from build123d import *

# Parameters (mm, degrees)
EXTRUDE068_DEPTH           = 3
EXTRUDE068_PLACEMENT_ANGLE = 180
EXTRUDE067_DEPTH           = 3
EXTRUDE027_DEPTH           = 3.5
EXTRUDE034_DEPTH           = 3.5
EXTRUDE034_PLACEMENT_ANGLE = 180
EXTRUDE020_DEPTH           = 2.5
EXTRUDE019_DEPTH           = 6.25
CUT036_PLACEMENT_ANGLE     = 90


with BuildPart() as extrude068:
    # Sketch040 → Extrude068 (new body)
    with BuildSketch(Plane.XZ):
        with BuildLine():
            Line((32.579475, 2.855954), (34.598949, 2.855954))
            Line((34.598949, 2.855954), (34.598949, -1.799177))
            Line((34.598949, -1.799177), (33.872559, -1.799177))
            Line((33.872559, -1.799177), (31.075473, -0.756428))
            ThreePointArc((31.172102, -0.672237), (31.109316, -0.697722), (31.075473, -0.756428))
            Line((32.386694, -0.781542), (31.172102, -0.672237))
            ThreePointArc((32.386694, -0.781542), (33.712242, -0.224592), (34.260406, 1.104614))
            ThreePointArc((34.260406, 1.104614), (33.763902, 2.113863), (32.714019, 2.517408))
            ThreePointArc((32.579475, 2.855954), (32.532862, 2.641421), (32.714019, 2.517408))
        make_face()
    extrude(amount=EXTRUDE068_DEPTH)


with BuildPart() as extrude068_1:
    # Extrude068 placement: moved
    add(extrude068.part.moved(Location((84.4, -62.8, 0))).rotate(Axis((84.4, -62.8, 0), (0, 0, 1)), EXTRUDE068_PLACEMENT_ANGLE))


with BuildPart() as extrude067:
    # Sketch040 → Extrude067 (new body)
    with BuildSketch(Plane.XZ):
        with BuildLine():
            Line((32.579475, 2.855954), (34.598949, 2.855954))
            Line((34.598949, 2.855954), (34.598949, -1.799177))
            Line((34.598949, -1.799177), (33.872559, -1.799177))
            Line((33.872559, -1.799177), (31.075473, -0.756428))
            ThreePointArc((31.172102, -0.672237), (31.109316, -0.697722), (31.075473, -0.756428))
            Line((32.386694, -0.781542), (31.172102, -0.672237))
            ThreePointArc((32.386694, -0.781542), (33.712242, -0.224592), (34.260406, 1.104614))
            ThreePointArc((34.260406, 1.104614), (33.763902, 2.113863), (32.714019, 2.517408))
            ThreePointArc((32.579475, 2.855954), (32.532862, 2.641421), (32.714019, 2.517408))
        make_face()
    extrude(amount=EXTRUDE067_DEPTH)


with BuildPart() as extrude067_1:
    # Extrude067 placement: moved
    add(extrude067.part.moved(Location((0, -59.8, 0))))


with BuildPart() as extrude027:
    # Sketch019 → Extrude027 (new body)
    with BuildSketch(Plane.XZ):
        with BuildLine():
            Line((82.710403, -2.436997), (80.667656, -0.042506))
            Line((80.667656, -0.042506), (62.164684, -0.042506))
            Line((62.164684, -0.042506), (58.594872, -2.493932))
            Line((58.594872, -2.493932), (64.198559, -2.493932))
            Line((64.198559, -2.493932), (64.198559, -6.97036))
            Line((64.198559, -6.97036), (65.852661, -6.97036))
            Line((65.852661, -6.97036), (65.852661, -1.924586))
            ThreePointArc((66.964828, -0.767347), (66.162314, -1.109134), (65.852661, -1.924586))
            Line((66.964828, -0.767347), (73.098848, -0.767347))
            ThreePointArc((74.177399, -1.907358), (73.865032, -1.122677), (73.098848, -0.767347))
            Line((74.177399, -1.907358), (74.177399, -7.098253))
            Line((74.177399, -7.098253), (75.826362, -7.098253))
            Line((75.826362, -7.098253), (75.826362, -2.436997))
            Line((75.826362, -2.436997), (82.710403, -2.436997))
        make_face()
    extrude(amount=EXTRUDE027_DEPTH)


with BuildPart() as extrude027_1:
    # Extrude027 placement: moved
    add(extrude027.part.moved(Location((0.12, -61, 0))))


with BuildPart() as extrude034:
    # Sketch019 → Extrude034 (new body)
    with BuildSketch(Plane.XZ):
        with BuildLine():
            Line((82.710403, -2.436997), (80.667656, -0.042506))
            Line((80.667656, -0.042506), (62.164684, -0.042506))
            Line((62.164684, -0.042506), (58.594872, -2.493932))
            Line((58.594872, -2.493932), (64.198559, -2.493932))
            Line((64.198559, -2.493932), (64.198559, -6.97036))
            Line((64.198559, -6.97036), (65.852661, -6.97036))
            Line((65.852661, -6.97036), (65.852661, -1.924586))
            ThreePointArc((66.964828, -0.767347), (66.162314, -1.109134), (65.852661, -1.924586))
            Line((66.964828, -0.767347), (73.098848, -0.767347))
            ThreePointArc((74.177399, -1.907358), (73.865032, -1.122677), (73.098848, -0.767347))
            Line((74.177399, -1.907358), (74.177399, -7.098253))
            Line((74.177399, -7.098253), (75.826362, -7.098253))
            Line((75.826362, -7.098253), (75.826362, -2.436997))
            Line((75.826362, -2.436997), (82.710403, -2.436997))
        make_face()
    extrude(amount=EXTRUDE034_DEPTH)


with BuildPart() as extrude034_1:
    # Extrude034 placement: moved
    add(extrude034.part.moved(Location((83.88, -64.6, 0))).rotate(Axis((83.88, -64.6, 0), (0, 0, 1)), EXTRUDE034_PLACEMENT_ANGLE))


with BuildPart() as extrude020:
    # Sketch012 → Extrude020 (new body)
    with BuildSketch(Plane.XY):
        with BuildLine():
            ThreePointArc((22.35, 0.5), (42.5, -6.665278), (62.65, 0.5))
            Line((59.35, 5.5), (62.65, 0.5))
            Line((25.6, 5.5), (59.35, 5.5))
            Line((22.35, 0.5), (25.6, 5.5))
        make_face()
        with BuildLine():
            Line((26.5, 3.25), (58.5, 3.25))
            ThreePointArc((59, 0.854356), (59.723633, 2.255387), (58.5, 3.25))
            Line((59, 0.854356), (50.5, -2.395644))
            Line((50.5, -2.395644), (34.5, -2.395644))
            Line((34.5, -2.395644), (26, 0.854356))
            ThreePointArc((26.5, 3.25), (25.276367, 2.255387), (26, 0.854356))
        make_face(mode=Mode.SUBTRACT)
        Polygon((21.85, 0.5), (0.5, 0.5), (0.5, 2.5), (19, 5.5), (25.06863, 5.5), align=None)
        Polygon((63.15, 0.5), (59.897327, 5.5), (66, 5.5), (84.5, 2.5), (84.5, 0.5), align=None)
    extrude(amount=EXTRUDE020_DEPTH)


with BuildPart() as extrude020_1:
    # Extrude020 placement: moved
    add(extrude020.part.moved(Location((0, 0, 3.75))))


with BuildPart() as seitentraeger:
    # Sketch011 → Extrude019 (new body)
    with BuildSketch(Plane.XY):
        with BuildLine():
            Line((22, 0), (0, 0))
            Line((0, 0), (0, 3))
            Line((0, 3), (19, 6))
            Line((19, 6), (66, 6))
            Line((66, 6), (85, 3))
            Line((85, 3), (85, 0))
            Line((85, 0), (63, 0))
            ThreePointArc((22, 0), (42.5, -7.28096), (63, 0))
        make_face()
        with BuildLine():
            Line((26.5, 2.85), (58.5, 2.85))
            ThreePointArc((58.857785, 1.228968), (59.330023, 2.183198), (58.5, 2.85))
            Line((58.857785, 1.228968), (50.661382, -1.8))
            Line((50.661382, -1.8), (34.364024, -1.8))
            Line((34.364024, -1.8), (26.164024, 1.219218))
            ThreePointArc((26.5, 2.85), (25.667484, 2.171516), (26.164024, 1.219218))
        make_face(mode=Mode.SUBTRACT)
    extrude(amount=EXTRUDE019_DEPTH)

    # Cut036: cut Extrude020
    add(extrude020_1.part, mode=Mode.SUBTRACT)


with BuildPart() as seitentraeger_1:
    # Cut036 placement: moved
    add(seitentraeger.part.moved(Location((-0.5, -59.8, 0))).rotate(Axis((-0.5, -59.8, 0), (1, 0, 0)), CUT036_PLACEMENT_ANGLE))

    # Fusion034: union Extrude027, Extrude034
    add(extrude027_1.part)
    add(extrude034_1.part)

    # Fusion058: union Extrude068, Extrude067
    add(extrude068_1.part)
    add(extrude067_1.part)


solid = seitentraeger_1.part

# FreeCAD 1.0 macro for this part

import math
import FreeCAD as App
import Part
import Sketcher

V = App.Vector

doc = App.newDocument("Part")
body = doc.addObject("PartDesign::Body", "Body")

sketch1 = body.newObject("Sketcher::SketchObject", "Sketch")
sketch1.AttachmentSupport = (doc.getObject("XZ_Plane"), [""])
sketch1.MapMode = "FlatFace"
sketch1.addGeometry(Part.LineSegment(V(34.6, 2.86, 0), V(32.58, 2.86, 0)), False)
sketch1.addGeometry(Part.ArcOfCircle(Part.Circle(V(32.72, 2.71, 0), V(0, 0, 1), 0.2), math.radians(134), math.radians(270)), False)
sketch1.addGeometry(Part.ArcOfCircle(Part.Circle(V(32.72, 0.98, 0), V(0, 0, 1), 1.54), math.radians(5), math.radians(90)), False)
sketch1.addGeometry(Part.ArcOfCircle(Part.Circle(V(32.37, 1.11, 0), V(0, 0, 1), 1.89), math.radians(-90), math.radians(0)), False)
sketch1.addGeometry(Part.LineSegment(V(32.39, -0.78, 0), V(31.17, -0.67, 0)), False)
sketch1.addGeometry(Part.ArcOfCircle(Part.Circle(V(31.18, -0.78, 0), V(0, 0, 1), 0.1), math.radians(93), math.radians(169)), False)
sketch1.addGeometry(Part.LineSegment(V(31.08, -0.76, 0), V(33.87, -1.8, 0)), False)
sketch1.addGeometry(Part.LineSegment(V(33.87, -1.8, 0), V(34.6, -1.8, 0)), False)
sketch1.addGeometry(Part.LineSegment(V(34.6, -1.8, 0), V(34.6, 2.86, 0)), False)
sketch1.addConstraint(Sketcher.Constraint("Coincident", 0, 2, 1, 1))
sketch1.addConstraint(Sketcher.Constraint("Coincident", 1, 2, 2, 2))
sketch1.addConstraint(Sketcher.Constraint("Coincident", 2, 1, 3, 2))
sketch1.addConstraint(Sketcher.Constraint("Coincident", 3, 1, 4, 1))
sketch1.addConstraint(Sketcher.Constraint("Coincident", 4, 2, 5, 1))
sketch1.addConstraint(Sketcher.Constraint("Coincident", 5, 2, 6, 1))
sketch1.addConstraint(Sketcher.Constraint("Coincident", 6, 2, 7, 1))
sketch1.addConstraint(Sketcher.Constraint("Coincident", 7, 2, 8, 1))
sketch1.addConstraint(Sketcher.Constraint("Coincident", 8, 2, 0, 1))
sketch1.addConstraint(Sketcher.Constraint("Horizontal", 0))
sketch1.addConstraint(Sketcher.Constraint("Horizontal", 7))
sketch1.addConstraint(Sketcher.Constraint("Vertical", 8))
sketch1.addConstraint(Sketcher.Constraint("Radius", 1, 0.196644))
sketch1.addConstraint(Sketcher.Constraint("Radius", 2, 1.541998))
sketch1.addConstraint(Sketcher.Constraint("Radius", 3, 1.886598))
sketch1.addConstraint(Sketcher.Constraint("Radius", 5, 0.104212))
sketch1.addConstraint(Sketcher.Constraint("Distance", 4, 1.2195))
sketch1.addConstraint(Sketcher.Constraint("DistanceX", 7, 1, 7, 2, 0.72639))
sketch1.addConstraint(Sketcher.Constraint("DistanceY", 8, 1, 8, 2, 4.655131))
sketch1.addConstraint(Sketcher.Constraint("DistanceX", -1, 1, 4, 2, 31.172102))
sketch1.addConstraint(Sketcher.Constraint("DistanceX", 5, 3, 0, 2, 1.401701))
sketch1.addConstraint(Sketcher.Constraint("DistanceX", 5, 2, 5, 3, 0.102301))
sketch1.addConstraint(Sketcher.Constraint("DistanceX", 0, 2, 0, 1, 2.019474))
sketch1.addConstraint(Sketcher.Constraint("DistanceX", -1, 1, 2, 3, 32.723828))
sketch1.addConstraint(Sketcher.Constraint("DistanceY", -1, 1, 2, 3, 0.975442))
sketch1.addConstraint(Sketcher.Constraint("DistanceX", -1, 1, 3, 3, 32.373808))
sketch1.addConstraint(Sketcher.Constraint("DistanceY", -1, 1, 3, 3, 1.105012))
sketch1.addConstraint(Sketcher.Constraint("DistanceX", -1, 1, 1, 2, 32.714019))
sketch1.addConstraint(Sketcher.Constraint("DistanceX", -1, 1, 6, 2, 33.872559))
sketch1.addConstraint(Sketcher.Constraint("DistanceX", 5, 3, 1, 3, 1.53783))
sketch1.addConstraint(Sketcher.Constraint("DistanceY", 5, 3, 1, 3, 3.490341))
pad1 = body.newObject("PartDesign::Pad", "Pad")
pad1.Profile = sketch1
pad1.Length = 3
body2 = doc.addObject("PartDesign::Body", "Body001")
doc.recompute()

body.Placement = App.Placement(V(84.4, -62.8, 0), App.Rotation(V(0, 0, 1), 180))
boolean = body2.newObject("PartDesign::Boolean", "Boolean")
boolean.Type = "Fuse"
boolean.addObjects([body])
body3 = doc.addObject("PartDesign::Body", "Body002")

sketch2 = body3.newObject("Sketcher::SketchObject", "Sketch001")
sketch2.AttachmentSupport = (doc.getObject("XZ_Plane002"), [""])
sketch2.MapMode = "FlatFace"
sketch2.addGeometry(Part.LineSegment(V(34.6, 2.86, 0), V(32.58, 2.86, 0)), False)
sketch2.addGeometry(Part.ArcOfCircle(Part.Circle(V(32.72, 2.71, 0), V(0, 0, 1), 0.2), math.radians(134), math.radians(270)), False)
sketch2.addGeometry(Part.ArcOfCircle(Part.Circle(V(32.72, 0.98, 0), V(0, 0, 1), 1.54), math.radians(5), math.radians(90)), False)
sketch2.addGeometry(Part.ArcOfCircle(Part.Circle(V(32.37, 1.11, 0), V(0, 0, 1), 1.89), math.radians(-90), math.radians(0)), False)
sketch2.addGeometry(Part.LineSegment(V(32.39, -0.78, 0), V(31.17, -0.67, 0)), False)
sketch2.addGeometry(Part.ArcOfCircle(Part.Circle(V(31.18, -0.78, 0), V(0, 0, 1), 0.1), math.radians(93), math.radians(169)), False)
sketch2.addGeometry(Part.LineSegment(V(31.08, -0.76, 0), V(33.87, -1.8, 0)), False)
sketch2.addGeometry(Part.LineSegment(V(33.87, -1.8, 0), V(34.6, -1.8, 0)), False)
sketch2.addGeometry(Part.LineSegment(V(34.6, -1.8, 0), V(34.6, 2.86, 0)), False)
sketch2.addConstraint(Sketcher.Constraint("Coincident", 0, 2, 1, 1))
sketch2.addConstraint(Sketcher.Constraint("Coincident", 1, 2, 2, 2))
sketch2.addConstraint(Sketcher.Constraint("Coincident", 2, 1, 3, 2))
sketch2.addConstraint(Sketcher.Constraint("Coincident", 3, 1, 4, 1))
sketch2.addConstraint(Sketcher.Constraint("Coincident", 4, 2, 5, 1))
sketch2.addConstraint(Sketcher.Constraint("Coincident", 5, 2, 6, 1))
sketch2.addConstraint(Sketcher.Constraint("Coincident", 6, 2, 7, 1))
sketch2.addConstraint(Sketcher.Constraint("Coincident", 7, 2, 8, 1))
sketch2.addConstraint(Sketcher.Constraint("Coincident", 8, 2, 0, 1))
sketch2.addConstraint(Sketcher.Constraint("Horizontal", 0))
sketch2.addConstraint(Sketcher.Constraint("Horizontal", 7))
sketch2.addConstraint(Sketcher.Constraint("Vertical", 8))
sketch2.addConstraint(Sketcher.Constraint("Radius", 1, 0.196644))
sketch2.addConstraint(Sketcher.Constraint("Radius", 2, 1.541998))
sketch2.addConstraint(Sketcher.Constraint("Radius", 3, 1.886598))
sketch2.addConstraint(Sketcher.Constraint("Radius", 5, 0.104212))
sketch2.addConstraint(Sketcher.Constraint("Distance", 4, 1.2195))
sketch2.addConstraint(Sketcher.Constraint("DistanceX", 7, 1, 7, 2, 0.72639))
sketch2.addConstraint(Sketcher.Constraint("DistanceY", 8, 1, 8, 2, 4.655131))
sketch2.addConstraint(Sketcher.Constraint("DistanceX", -1, 1, 4, 2, 31.172102))
sketch2.addConstraint(Sketcher.Constraint("DistanceX", 5, 3, 0, 2, 1.401701))
sketch2.addConstraint(Sketcher.Constraint("DistanceX", 5, 2, 5, 3, 0.102301))
sketch2.addConstraint(Sketcher.Constraint("DistanceX", 0, 2, 0, 1, 2.019474))
sketch2.addConstraint(Sketcher.Constraint("DistanceX", -1, 1, 2, 3, 32.723828))
sketch2.addConstraint(Sketcher.Constraint("DistanceY", -1, 1, 2, 3, 0.975442))
sketch2.addConstraint(Sketcher.Constraint("DistanceX", -1, 1, 3, 3, 32.373808))
sketch2.addConstraint(Sketcher.Constraint("DistanceY", -1, 1, 3, 3, 1.105012))
sketch2.addConstraint(Sketcher.Constraint("DistanceX", -1, 1, 1, 2, 32.714019))
sketch2.addConstraint(Sketcher.Constraint("DistanceX", -1, 1, 6, 2, 33.872559))
sketch2.addConstraint(Sketcher.Constraint("DistanceX", 5, 3, 1, 3, 1.53783))
sketch2.addConstraint(Sketcher.Constraint("DistanceY", 5, 3, 1, 3, 3.490341))
pad2 = body3.newObject("PartDesign::Pad", "Pad001")
pad2.Profile = sketch2
pad2.Length = 3
body4 = doc.addObject("PartDesign::Body", "Body003")
doc.recompute()

body3.Placement = App.Placement(V(0, -59.8, 0), App.Rotation(V(0, 0, 1), 0))
boolean2 = body4.newObject("PartDesign::Boolean", "Boolean001")
boolean2.Type = "Fuse"
boolean2.addObjects([body3])
body5 = doc.addObject("PartDesign::Body", "Body004")

sketch3 = body5.newObject("Sketcher::SketchObject", "Sketch002")
sketch3.AttachmentSupport = (doc.getObject("XZ_Plane004"), [""])
sketch3.MapMode = "FlatFace"
sketch3.addGeometry(Part.LineSegment(V(82.7, -2.4, 0), V(80.7, 0, 0)), False)
sketch3.addGeometry(Part.LineSegment(V(80.7, 0, 0), V(62.2, 0, 0)), False)
sketch3.addGeometry(Part.LineSegment(V(62.2, 0, 0), V(58.6, -2.5, 0)), False)
sketch3.addGeometry(Part.LineSegment(V(58.6, -2.5, 0), V(64.2, -2.5, 0)), False)
sketch3.addGeometry(Part.LineSegment(V(64.2, -2.5, 0), V(64.2, -7, 0)), False)
sketch3.addGeometry(Part.LineSegment(V(64.2, -7, 0), V(65.9, -7, 0)), False)
sketch3.addGeometry(Part.LineSegment(V(65.9, -7, 0), V(65.9, -1.9, 0)), False)
sketch3.addGeometry(Part.ArcOfCircle(Part.Circle(V(67, -1.9, 0), V(0, 0, 1), 1.1), math.radians(90), math.radians(182)), False)
sketch3.addGeometry(Part.LineSegment(V(67, -0.8, 0), V(73.1, -0.8, 0)), False)
sketch3.addGeometry(Part.ArcOfCircle(Part.Circle(V(73, -1.9, 0), V(0, 0, 1), 1.1), math.radians(0), math.radians(87)), False)
sketch3.addGeometry(Part.LineSegment(V(74.2, -1.9, 0), V(74.2, -7.1, 0)), False)
sketch3.addGeometry(Part.LineSegment(V(74.2, -7.1, 0), V(75.8, -7.1, 0)), False)
sketch3.addGeometry(Part.LineSegment(V(75.8, -7.1, 0), V(75.8, -2.4, 0)), False)
sketch3.addGeometry(Part.LineSegment(V(75.8, -2.4, 0), V(82.7, -2.4, 0)), False)
sketch3.addConstraint(Sketcher.Constraint("Coincident", 0, 2, 1, 1))
sketch3.addConstraint(Sketcher.Constraint("Coincident", 1, 2, 2, 1))
sketch3.addConstraint(Sketcher.Constraint("Coincident", 2, 2, 3, 1))
sketch3.addConstraint(Sketcher.Constraint("Coincident", 3, 2, 4, 1))
sketch3.addConstraint(Sketcher.Constraint("Coincident", 4, 2, 5, 1))
sketch3.addConstraint(Sketcher.Constraint("Coincident", 5, 2, 6, 1))
sketch3.addConstraint(Sketcher.Constraint("Coincident", 6, 2, 7, 2))
sketch3.addConstraint(Sketcher.Constraint("Tangent", 7, 1, 8, 1))
sketch3.addConstraint(Sketcher.Constraint("Coincident", 8, 2, 9, 2))
sketch3.addConstraint(Sketcher.Constraint("Tangent", 9, 1, 10, 1))
sketch3.addConstraint(Sketcher.Constraint("Coincident", 10, 2, 11, 1))
sketch3.addConstraint(Sketcher.Constraint("Coincident", 11, 2, 12, 1))
sketch3.addConstraint(Sketcher.Constraint("Coincident", 12, 2, 13, 1))
sketch3.addConstraint(Sketcher.Constraint("Coincident", 13, 2, 0, 1))
sketch3.addConstraint(Sketcher.Constraint("Horizontal", 1))
sketch3.addConstraint(Sketcher.Constraint("Horizontal", 3))
sketch3.addConstraint(Sketcher.Constraint("Vertical", 4))
sketch3.addConstraint(Sketcher.Constraint("Horizontal", 5))
sketch3.addConstraint(Sketcher.Constraint("Vertical", 6))
sketch3.addConstraint(Sketcher.Constraint("Horizontal", 8))
sketch3.addConstraint(Sketcher.Constraint("Vertical", 10))
sketch3.addConstraint(Sketcher.Constraint("Horizontal", 11))
sketch3.addConstraint(Sketcher.Constraint("Vertical", 12))
sketch3.addConstraint(Sketcher.Constraint("Horizontal", 13))
sketch3.addConstraint(Sketcher.Constraint("DistanceX", 5, 1, 5, 2, 1.654102))
sketch3.addConstraint(Sketcher.Constraint("Radius", 7, 1.113046))
sketch3.addConstraint(Sketcher.Constraint("Radius", 9, 1.141762))
sketch3.addConstraint(Sketcher.Constraint("DistanceY", 4, 2, 9, 3, 5.063002))
sketch3.addConstraint(Sketcher.Constraint("DistanceX", 1, 2, 1, 1, 18.502972))
sketch3.addConstraint(Sketcher.Constraint("DistanceX", 8, 1, 8, 2, 6.13402))
sketch3.addConstraint(Sketcher.Constraint("DistanceX", 13, 1, 13, 2, 6.884041))
sketch3.addConstraint(Sketcher.Constraint("DistanceY", 4, 2, 4, 1, 4.476428))
sketch3.addConstraint(Sketcher.Constraint("DistanceX", -1, 1, 9, 1, 74.177399))
sketch3.addConstraint(Sketcher.Constraint("Distance", 2, 4.330479))
sketch3.addConstraint(Sketcher.Constraint("DistanceX", 3, 1, 3, 2, 5.603687))
sketch3.addConstraint(Sketcher.Constraint("DistanceX", 11, 1, 11, 2, 1.648963))
sketch3.addConstraint(Sketcher.Constraint("DistanceY", 6, 1, 6, 2, 5.045774))
sketch3.addConstraint(Sketcher.Constraint("DistanceY", 10, 2, 10, 1, 5.190895))
sketch3.addConstraint(Sketcher.Constraint("DistanceY", 12, 1, 12, 2, 4.661256))
sketch3.addConstraint(Sketcher.Constraint("DistanceX", -1, 1, 7, 3, 66.964829))
sketch3.addConstraint(Sketcher.Constraint("DistanceY", 9, 3, -1, 1, 1.907358))
sketch3.addConstraint(Sketcher.Constraint("DistanceX", 9, 3, 0, 2, 7.632019))
pad3 = body5.newObject("PartDesign::Pad", "Pad002")
pad3.Profile = sketch3
pad3.Length = 3.5
body6 = doc.addObject("PartDesign::Body", "Body005")
doc.recompute()

body5.Placement = App.Placement(V(0.12, -61, 0), App.Rotation(V(0, 0, 1), 0))
boolean3 = body6.newObject("PartDesign::Boolean", "Boolean002")
boolean3.Type = "Fuse"
boolean3.addObjects([body5])
body7 = doc.addObject("PartDesign::Body", "Body006")

sketch4 = body7.newObject("Sketcher::SketchObject", "Sketch003")
sketch4.AttachmentSupport = (doc.getObject("XZ_Plane006"), [""])
sketch4.MapMode = "FlatFace"
sketch4.addGeometry(Part.LineSegment(V(82.7, -2.4, 0), V(80.7, 0, 0)), False)
sketch4.addGeometry(Part.LineSegment(V(80.7, 0, 0), V(62.2, 0, 0)), False)
sketch4.addGeometry(Part.LineSegment(V(62.2, 0, 0), V(58.6, -2.5, 0)), False)
sketch4.addGeometry(Part.LineSegment(V(58.6, -2.5, 0), V(64.2, -2.5, 0)), False)
sketch4.addGeometry(Part.LineSegment(V(64.2, -2.5, 0), V(64.2, -7, 0)), False)
sketch4.addGeometry(Part.LineSegment(V(64.2, -7, 0), V(65.9, -7, 0)), False)
sketch4.addGeometry(Part.LineSegment(V(65.9, -7, 0), V(65.9, -1.9, 0)), False)
sketch4.addGeometry(Part.ArcOfCircle(Part.Circle(V(67, -1.9, 0), V(0, 0, 1), 1.1), math.radians(90), math.radians(182)), False)
sketch4.addGeometry(Part.LineSegment(V(67, -0.8, 0), V(73.1, -0.8, 0)), False)
sketch4.addGeometry(Part.ArcOfCircle(Part.Circle(V(73, -1.9, 0), V(0, 0, 1), 1.1), math.radians(0), math.radians(87)), False)
sketch4.addGeometry(Part.LineSegment(V(74.2, -1.9, 0), V(74.2, -7.1, 0)), False)
sketch4.addGeometry(Part.LineSegment(V(74.2, -7.1, 0), V(75.8, -7.1, 0)), False)
sketch4.addGeometry(Part.LineSegment(V(75.8, -7.1, 0), V(75.8, -2.4, 0)), False)
sketch4.addGeometry(Part.LineSegment(V(75.8, -2.4, 0), V(82.7, -2.4, 0)), False)
sketch4.addConstraint(Sketcher.Constraint("Coincident", 0, 2, 1, 1))
sketch4.addConstraint(Sketcher.Constraint("Coincident", 1, 2, 2, 1))
sketch4.addConstraint(Sketcher.Constraint("Coincident", 2, 2, 3, 1))
sketch4.addConstraint(Sketcher.Constraint("Coincident", 3, 2, 4, 1))
sketch4.addConstraint(Sketcher.Constraint("Coincident", 4, 2, 5, 1))
sketch4.addConstraint(Sketcher.Constraint("Coincident", 5, 2, 6, 1))
sketch4.addConstraint(Sketcher.Constraint("Coincident", 6, 2, 7, 2))
sketch4.addConstraint(Sketcher.Constraint("Tangent", 7, 1, 8, 1))
sketch4.addConstraint(Sketcher.Constraint("Coincident", 8, 2, 9, 2))
sketch4.addConstraint(Sketcher.Constraint("Tangent", 9, 1, 10, 1))
sketch4.addConstraint(Sketcher.Constraint("Coincident", 10, 2, 11, 1))
sketch4.addConstraint(Sketcher.Constraint("Coincident", 11, 2, 12, 1))
sketch4.addConstraint(Sketcher.Constraint("Coincident", 12, 2, 13, 1))
sketch4.addConstraint(Sketcher.Constraint("Coincident", 13, 2, 0, 1))
sketch4.addConstraint(Sketcher.Constraint("Horizontal", 1))
sketch4.addConstraint(Sketcher.Constraint("Horizontal", 3))
sketch4.addConstraint(Sketcher.Constraint("Vertical", 4))
sketch4.addConstraint(Sketcher.Constraint("Horizontal", 5))
sketch4.addConstraint(Sketcher.Constraint("Vertical", 6))
sketch4.addConstraint(Sketcher.Constraint("Horizontal", 8))
sketch4.addConstraint(Sketcher.Constraint("Vertical", 10))
sketch4.addConstraint(Sketcher.Constraint("Horizontal", 11))
sketch4.addConstraint(Sketcher.Constraint("Vertical", 12))
sketch4.addConstraint(Sketcher.Constraint("Horizontal", 13))
sketch4.addConstraint(Sketcher.Constraint("DistanceX", 5, 1, 5, 2, 1.654102))
sketch4.addConstraint(Sketcher.Constraint("Radius", 7, 1.113046))
sketch4.addConstraint(Sketcher.Constraint("Radius", 9, 1.141762))
sketch4.addConstraint(Sketcher.Constraint("DistanceY", 4, 2, 9, 3, 5.063002))
sketch4.addConstraint(Sketcher.Constraint("DistanceX", 1, 2, 1, 1, 18.502972))
sketch4.addConstraint(Sketcher.Constraint("DistanceX", 8, 1, 8, 2, 6.13402))
sketch4.addConstraint(Sketcher.Constraint("DistanceX", 13, 1, 13, 2, 6.884041))
sketch4.addConstraint(Sketcher.Constraint("DistanceY", 4, 2, 4, 1, 4.476428))
sketch4.addConstraint(Sketcher.Constraint("DistanceX", -1, 1, 9, 1, 74.177399))
sketch4.addConstraint(Sketcher.Constraint("Distance", 2, 4.330479))
sketch4.addConstraint(Sketcher.Constraint("DistanceX", 3, 1, 3, 2, 5.603687))
sketch4.addConstraint(Sketcher.Constraint("DistanceX", 11, 1, 11, 2, 1.648963))
sketch4.addConstraint(Sketcher.Constraint("DistanceY", 6, 1, 6, 2, 5.045774))
sketch4.addConstraint(Sketcher.Constraint("DistanceY", 10, 2, 10, 1, 5.190895))
sketch4.addConstraint(Sketcher.Constraint("DistanceY", 12, 1, 12, 2, 4.661256))
sketch4.addConstraint(Sketcher.Constraint("DistanceX", -1, 1, 7, 3, 66.964829))
sketch4.addConstraint(Sketcher.Constraint("DistanceY", 9, 3, -1, 1, 1.907358))
sketch4.addConstraint(Sketcher.Constraint("DistanceX", 9, 3, 0, 2, 7.632019))
pad4 = body7.newObject("PartDesign::Pad", "Pad003")
pad4.Profile = sketch4
pad4.Length = 3.5
body8 = doc.addObject("PartDesign::Body", "Body007")
doc.recompute()

body7.Placement = App.Placement(V(83.88, -64.6, 0), App.Rotation(V(0, 0, 1), 180))
boolean4 = body8.newObject("PartDesign::Boolean", "Boolean003")
boolean4.Type = "Fuse"
boolean4.addObjects([body7])
body9 = doc.addObject("PartDesign::Body", "Body008")
body9.AllowCompound = True

sketch5 = body9.newObject("Sketcher::SketchObject", "Sketch004")
sketch5.AttachmentSupport = (doc.getObject("XY_Plane008"), [""])
sketch5.MapMode = "FlatFace"
sketch5.addGeometry(Part.ArcOfCircle(Part.Circle(V(42.5, 25.3, 0), V(0, 0, 1), 31.9), math.radians(-129), math.radians(-51)), False)
sketch5.addGeometry(Part.LineSegment(V(62.6, 0.5, 0), V(59.4, 5.5, 0)), False)
sketch5.addGeometry(Part.LineSegment(V(59.4, 5.5, 0), V(25.6, 5.5, 0)), False)
sketch5.addGeometry(Part.LineSegment(V(25.6, 5.5, 0), V(22.4, 0.5, 0)), False)
sketch5.addGeometry(Part.ArcOfCircle(Part.Circle(V(26.5, 2, 0), V(0, 0, 1), 1.3), math.radians(90), math.radians(246)), False)
sketch5.addGeometry(Part.LineSegment(V(26.5, 3.2, 0), V(58.5, 3.2, 0)), False)
sketch5.addGeometry(Part.ArcOfCircle(Part.Circle(V(58.5, 2, 0), V(0, 0, 1), 1.3), math.radians(-66), math.radians(90)), False)
sketch5.addGeometry(Part.LineSegment(V(59, 0.9, 0), V(50.5, -2.4, 0)), False)
sketch5.addGeometry(Part.LineSegment(V(50.5, -2.4, 0), V(34.5, -2.4, 0)), False)
sketch5.addGeometry(Part.LineSegment(V(34.5, -2.4, 0), V(26, 0.9, 0)), False)
sketch5.addGeometry(Part.LineSegment(V(0.5, 0.5, 0), V(21.9, 0.5, 0)), False)
sketch5.addGeometry(Part.LineSegment(V(21.9, 0.5, 0), V(25.1, 5.5, 0)), False)
sketch5.addGeometry(Part.LineSegment(V(25.1, 5.5, 0), V(19, 5.5, 0)), False)
sketch5.addGeometry(Part.LineSegment(V(19, 5.5, 0), V(0.5, 2.5, 0)), False)
sketch5.addGeometry(Part.LineSegment(V(0.5, 2.5, 0), V(0.5, 0.5, 0)), False)
sketch5.addGeometry(Part.LineSegment(V(59.9, 5.5, 0), V(63.1, 0.5, 0)), False)
sketch5.addGeometry(Part.LineSegment(V(63.1, 0.5, 0), V(84.5, 0.5, 0)), False)
sketch5.addGeometry(Part.LineSegment(V(84.5, 0.5, 0), V(84.5, 2.5, 0)), False)
sketch5.addGeometry(Part.LineSegment(V(84.5, 2.5, 0), V(66, 5.5, 0)), False)
sketch5.addGeometry(Part.LineSegment(V(66, 5.5, 0), V(59.9, 5.5, 0)), False)
sketch5.addConstraint(Sketcher.Constraint("Coincident", 0, 2, 1, 1))
sketch5.addConstraint(Sketcher.Constraint("Coincident", 1, 2, 2, 1))
sketch5.addConstraint(Sketcher.Constraint("Coincident", 2, 2, 3, 1))
sketch5.addConstraint(Sketcher.Constraint("Coincident", 3, 2, 0, 1))
sketch5.addConstraint(Sketcher.Constraint("Tangent", 4, 1, 5, 1))
sketch5.addConstraint(Sketcher.Constraint("Tangent", 5, 2, 6, 2))
sketch5.addConstraint(Sketcher.Constraint("Coincident", 6, 1, 7, 1))
sketch5.addConstraint(Sketcher.Constraint("Coincident", 7, 2, 8, 1))
sketch5.addConstraint(Sketcher.Constraint("Coincident", 8, 2, 9, 1))
sketch5.addConstraint(Sketcher.Constraint("Coincident", 9, 2, 4, 2))
sketch5.addConstraint(Sketcher.Constraint("Coincident", 10, 2, 11, 1))
sketch5.addConstraint(Sketcher.Constraint("Coincident", 11, 2, 12, 1))
sketch5.addConstraint(Sketcher.Constraint("Coincident", 12, 2, 13, 1))
sketch5.addConstraint(Sketcher.Constraint("Coincident", 13, 2, 14, 1))
sketch5.addConstraint(Sketcher.Constraint("Coincident", 14, 2, 10, 1))
sketch5.addConstraint(Sketcher.Constraint("Coincident", 15, 2, 16, 1))
sketch5.addConstraint(Sketcher.Constraint("Coincident", 16, 2, 17, 1))
sketch5.addConstraint(Sketcher.Constraint("Coincident", 17, 2, 18, 1))
sketch5.addConstraint(Sketcher.Constraint("Coincident", 18, 2, 19, 1))
sketch5.addConstraint(Sketcher.Constraint("Coincident", 19, 2, 15, 1))
sketch5.addConstraint(Sketcher.Constraint("Horizontal", 2))
sketch5.addConstraint(Sketcher.Constraint("Horizontal", 5))
sketch5.addConstraint(Sketcher.Constraint("Horizontal", 8))
sketch5.addConstraint(Sketcher.Constraint("Horizontal", 10))
sketch5.addConstraint(Sketcher.Constraint("Horizontal", 12))
sketch5.addConstraint(Sketcher.Constraint("Vertical", 14))
sketch5.addConstraint(Sketcher.Constraint("Horizontal", 16))
sketch5.addConstraint(Sketcher.Constraint("Vertical", 17))
sketch5.addConstraint(Sketcher.Constraint("Horizontal", 19))
sketch5.addConstraint(Sketcher.Constraint("Equal", 4, 6))
sketch5.addConstraint(Sketcher.Constraint("Horizontal", 0, 2, 3, 2))
sketch5.addConstraint(Sketcher.Constraint("Horizontal", 6, 1, 9, 2))
sketch5.addConstraint(Sketcher.Constraint("Horizontal", 3, 2, 10, 2))
sketch5.addConstraint(Sketcher.Constraint("Horizontal", 2, 2, 11, 2))
sketch5.addConstraint(Sketcher.Constraint("Horizontal", 14, 2, 15, 2))
sketch5.addConstraint(Sketcher.Constraint("Horizontal", 13, 2, 17, 2))
sketch5.addConstraint(Sketcher.Constraint("Horizontal", 12, 2, 18, 2))
sketch5.addConstraint(Sketcher.Constraint("Equal", 10, 16))
sketch5.addConstraint(Sketcher.Constraint("Equal", 7, 9))
sketch5.addConstraint(Sketcher.Constraint("Equal", 13, 18))
sketch5.addConstraint(Sketcher.Constraint("DistanceX", 5, 1, 5, 2, 32.0))
sketch5.addConstraint(Sketcher.Constraint("DistanceX", 8, 2, 8, 1, 16.0))
sketch5.addConstraint(Sketcher.Constraint("DistanceY", 14, 2, 14, 1, 2.0))
sketch5.addConstraint(Sketcher.Constraint("Radius", 4, 1.25))
sketch5.addConstraint(Sketcher.Constraint("DistanceY", -1, 1, 4, 3, 2.0))
sketch5.addConstraint(Sketcher.Constraint("DistanceX", -1, 1, 6, 1, 59.0))
sketch5.addConstraint(Sketcher.Constraint("DistanceX", -1, 1, 9, 2, 26.0))
sketch5.addConstraint(Sketcher.Constraint("DistanceX", -1, 1, 12, 2, 19.0))
sketch5.addConstraint(Sketcher.Constraint("DistanceX", -1, 1, 18, 2, 66.0))
sketch5.addConstraint(Sketcher.Constraint("DistanceX", 4, 3, 0, 3, 16.0))
sketch5.addConstraint(Sketcher.Constraint("DistanceY", 0, 2, 1, 2, 5.0))
sketch5.addConstraint(Sketcher.Constraint("DistanceX", 3, 2, 1, 2, 37.0))
sketch5.addConstraint(Sketcher.Constraint("DistanceX", 6, 3, 16, 2, 26.0))
sketch5.addConstraint(Sketcher.Constraint("DistanceX", 2, 2, 2, 1, 33.75))
sketch5.addConstraint(Sketcher.Constraint("DistanceX", 10, 1, 10, 2, 21.35))
sketch5.addConstraint(Sketcher.Constraint("DistanceY", -1, 1, 0, 2, 0.5))
sketch5.addConstraint(Sketcher.Constraint("DistanceX", -1, 1, 2, 2, 25.6))
sketch5.addConstraint(Sketcher.Constraint("Radius", 0, 31.91528))
sketch5.addConstraint(Sketcher.Constraint("DistanceY", 7, 2, 6, 1, 3.25))
sketch5.addConstraint(Sketcher.Constraint("DistanceX", 12, 2, 12, 1, 6.06863))
sketch5.addConstraint(Sketcher.Constraint("DistanceX", 19, 2, 19, 1, 6.102673))
pad5 = body9.newObject("PartDesign::Pad", "Pad004")
pad5.Profile = sketch5
pad5.Length = 2.5
body10 = doc.addObject("PartDesign::Body", "Body009")
body10.AllowCompound = True
doc.recompute()

body9.Placement = App.Placement(V(0, 0, 3.75), App.Rotation(V(0, 0, 1), 0))
boolean5 = body10.newObject("PartDesign::Boolean", "Boolean004")
boolean5.Type = "Fuse"
boolean5.addObjects([body9])
body11 = doc.addObject("PartDesign::Body", "Body010")

sketch6 = body11.newObject("Sketcher::SketchObject", "Sketch005")
sketch6.AttachmentSupport = (doc.getObject("XY_Plane010"), [""])
sketch6.MapMode = "FlatFace"
sketch6.addGeometry(Part.LineSegment(V(0, 0, 0), V(22, 0, 0)), False)
sketch6.addGeometry(Part.ArcOfCircle(Part.Circle(V(42.5, 25.2, 0), V(0, 0, 1), 32.5), math.radians(-129), math.radians(-51)), False)
sketch6.addGeometry(Part.LineSegment(V(63, 0, 0), V(85, 0, 0)), False)
sketch6.addGeometry(Part.LineSegment(V(85, 0, 0), V(85, 3, 0)), False)
sketch6.addGeometry(Part.LineSegment(V(85, 3, 0), V(66, 6, 0)), False)
sketch6.addGeometry(Part.LineSegment(V(66, 6, 0), V(19, 6, 0)), False)
sketch6.addGeometry(Part.LineSegment(V(19, 6, 0), V(0, 3, 0)), False)
sketch6.addGeometry(Part.LineSegment(V(0, 3, 0), V(0, 0, 0)), False)
sketch6.addGeometry(Part.LineSegment(V(26.5, 2.9, 0), V(58.5, 2.9, 0)), False)
sketch6.addGeometry(Part.ArcOfCircle(Part.Circle(V(58.5, 2, 0), V(0, 0, 1), 0.9), math.radians(-65), math.radians(90)), False)
sketch6.addGeometry(Part.LineSegment(V(58.9, 1.2, 0), V(50.7, -1.8, 0)), False)
sketch6.addGeometry(Part.LineSegment(V(50.7, -1.8, 0), V(34.4, -1.8, 0)), False)
sketch6.addGeometry(Part.LineSegment(V(34.4, -1.8, 0), V(26.2, 1.2, 0)), False)
sketch6.addGeometry(Part.ArcOfCircle(Part.Circle(V(26.5, 2, 0), V(0, 0, 1), 0.9), math.radians(90), math.radians(247)), False)
sketch6.addConstraint(Sketcher.Constraint("Coincident", 0, 2, 1, 1))
sketch6.addConstraint(Sketcher.Constraint("Coincident", 1, 2, 2, 1))
sketch6.addConstraint(Sketcher.Constraint("Coincident", 2, 2, 3, 1))
sketch6.addConstraint(Sketcher.Constraint("Coincident", 3, 2, 4, 1))
sketch6.addConstraint(Sketcher.Constraint("Coincident", 4, 2, 5, 1))
sketch6.addConstraint(Sketcher.Constraint("Coincident", 5, 2, 6, 1))
sketch6.addConstraint(Sketcher.Constraint("Coincident", 6, 2, 7, 1))
sketch6.addConstraint(Sketcher.Constraint("Coincident", 7, 2, 0, 1))
sketch6.addConstraint(Sketcher.Constraint("Tangent", 8, 2, 9, 2))
sketch6.addConstraint(Sketcher.Constraint("Coincident", 9, 1, 10, 1))
sketch6.addConstraint(Sketcher.Constraint("Coincident", 10, 2, 11, 1))
sketch6.addConstraint(Sketcher.Constraint("Coincident", 11, 2, 12, 1))
sketch6.addConstraint(Sketcher.Constraint("Coincident", 12, 2, 13, 2))
sketch6.addConstraint(Sketcher.Constraint("Tangent", 13, 1, 8, 1))
sketch6.addConstraint(Sketcher.Constraint("Horizontal", 0))
sketch6.addConstraint(Sketcher.Constraint("Horizontal", 2))
sketch6.addConstraint(Sketcher.Constraint("Vertical", 3))
sketch6.addConstraint(Sketcher.Constraint("Horizontal", 5))
sketch6.addConstraint(Sketcher.Constraint("Vertical", 7))
sketch6.addConstraint(Sketcher.Constraint("Horizontal", 8))
sketch6.addConstraint(Sketcher.Constraint("Horizontal", 11))
sketch6.addConstraint(Sketcher.Constraint("Coincident", 7, 2, -1, 1))
sketch6.addConstraint(Sketcher.Constraint("Equal", 9, 13))
sketch6.addConstraint(Sketcher.Constraint("PointOnObject", 1, 2, -1))
sketch6.addConstraint(Sketcher.Constraint("Horizontal", 3, 2, 6, 2))
sketch6.addConstraint(Sketcher.Constraint("Equal", 0, 2))
sketch6.addConstraint(Sketcher.Constraint("Equal", 4, 6))
sketch6.addConstraint(Sketcher.Constraint("Equal", 10, 12))
sketch6.addConstraint(Sketcher.Constraint("Radius", 1, 32.499999))
sketch6.addConstraint(Sketcher.Constraint("DistanceX", 0, 1, 0, 2, 22.0))
sketch6.addConstraint(Sketcher.Constraint("DistanceX", 5, 2, 5, 1, 47.0))
sketch6.addConstraint(Sketcher.Constraint("DistanceX", 8, 1, 8, 2, 32.0))
sketch6.addConstraint(Sketcher.Constraint("DistanceY", 3, 1, 3, 2, 3.0))
sketch6.addConstraint(Sketcher.Constraint("Radius", 9, 0.85))
sketch6.addConstraint(Sketcher.Constraint("DistanceY", -1, 1, 9, 3, 2.0))
sketch6.addConstraint(Sketcher.Constraint("DistanceX", -1, 1, 1, 2, 63.0))
sketch6.addConstraint(Sketcher.Constraint("DistanceY", -1, 1, 4, 2, 6.0))
sketch6.addConstraint(Sketcher.Constraint("DistanceX", 1, 3, 9, 3, 16.0))
sketch6.addConstraint(Sketcher.Constraint("DistanceY", 10, 2, -1, 1, 1.8))
sketch6.addConstraint(Sketcher.Constraint("DistanceX", 12, 2, 11, 2, 8.2))
sketch6.addConstraint(Sketcher.Constraint("DistanceX", 11, 2, 11, 1, 16.297358))
sketch6.addConstraint(Sketcher.Constraint("DistanceY", 9, 1, 9, 3, 0.771032))
pad6 = body11.newObject("PartDesign::Pad", "Pad005")
pad6.Profile = sketch6
pad6.Length = 6.25
doc.recompute()

boolean6 = body11.newObject("PartDesign::Boolean", "Boolean005")
boolean6.Type = "Cut"
boolean6.addObjects([body10])
body12 = doc.addObject("PartDesign::Body", "Body011")
doc.recompute()

body11.Placement = App.Placement(V(-0.5, -59.8, 0), App.Rotation(V(1, 0, 0), 90))
boolean7 = body12.newObject("PartDesign::Boolean", "Boolean006")
boolean7.Type = "Fuse"
boolean7.addObjects([body11])
doc.recompute()

boolean8 = body12.newObject("PartDesign::Boolean", "Boolean007")
boolean8.Type = "Fuse"
boolean8.addObjects([body6])
doc.recompute()

boolean9 = body12.newObject("PartDesign::Boolean", "Boolean008")
boolean9.Type = "Fuse"
boolean9.addObjects([body8])
doc.recompute()

boolean10 = body12.newObject("PartDesign::Boolean", "Boolean009")
boolean10.Type = "Fuse"
boolean10.addObjects([body2])
doc.recompute()

boolean11 = body12.newObject("PartDesign::Boolean", "Boolean010")
boolean11.Type = "Fuse"
boolean11.addObjects([body4])

doc.recompute()
